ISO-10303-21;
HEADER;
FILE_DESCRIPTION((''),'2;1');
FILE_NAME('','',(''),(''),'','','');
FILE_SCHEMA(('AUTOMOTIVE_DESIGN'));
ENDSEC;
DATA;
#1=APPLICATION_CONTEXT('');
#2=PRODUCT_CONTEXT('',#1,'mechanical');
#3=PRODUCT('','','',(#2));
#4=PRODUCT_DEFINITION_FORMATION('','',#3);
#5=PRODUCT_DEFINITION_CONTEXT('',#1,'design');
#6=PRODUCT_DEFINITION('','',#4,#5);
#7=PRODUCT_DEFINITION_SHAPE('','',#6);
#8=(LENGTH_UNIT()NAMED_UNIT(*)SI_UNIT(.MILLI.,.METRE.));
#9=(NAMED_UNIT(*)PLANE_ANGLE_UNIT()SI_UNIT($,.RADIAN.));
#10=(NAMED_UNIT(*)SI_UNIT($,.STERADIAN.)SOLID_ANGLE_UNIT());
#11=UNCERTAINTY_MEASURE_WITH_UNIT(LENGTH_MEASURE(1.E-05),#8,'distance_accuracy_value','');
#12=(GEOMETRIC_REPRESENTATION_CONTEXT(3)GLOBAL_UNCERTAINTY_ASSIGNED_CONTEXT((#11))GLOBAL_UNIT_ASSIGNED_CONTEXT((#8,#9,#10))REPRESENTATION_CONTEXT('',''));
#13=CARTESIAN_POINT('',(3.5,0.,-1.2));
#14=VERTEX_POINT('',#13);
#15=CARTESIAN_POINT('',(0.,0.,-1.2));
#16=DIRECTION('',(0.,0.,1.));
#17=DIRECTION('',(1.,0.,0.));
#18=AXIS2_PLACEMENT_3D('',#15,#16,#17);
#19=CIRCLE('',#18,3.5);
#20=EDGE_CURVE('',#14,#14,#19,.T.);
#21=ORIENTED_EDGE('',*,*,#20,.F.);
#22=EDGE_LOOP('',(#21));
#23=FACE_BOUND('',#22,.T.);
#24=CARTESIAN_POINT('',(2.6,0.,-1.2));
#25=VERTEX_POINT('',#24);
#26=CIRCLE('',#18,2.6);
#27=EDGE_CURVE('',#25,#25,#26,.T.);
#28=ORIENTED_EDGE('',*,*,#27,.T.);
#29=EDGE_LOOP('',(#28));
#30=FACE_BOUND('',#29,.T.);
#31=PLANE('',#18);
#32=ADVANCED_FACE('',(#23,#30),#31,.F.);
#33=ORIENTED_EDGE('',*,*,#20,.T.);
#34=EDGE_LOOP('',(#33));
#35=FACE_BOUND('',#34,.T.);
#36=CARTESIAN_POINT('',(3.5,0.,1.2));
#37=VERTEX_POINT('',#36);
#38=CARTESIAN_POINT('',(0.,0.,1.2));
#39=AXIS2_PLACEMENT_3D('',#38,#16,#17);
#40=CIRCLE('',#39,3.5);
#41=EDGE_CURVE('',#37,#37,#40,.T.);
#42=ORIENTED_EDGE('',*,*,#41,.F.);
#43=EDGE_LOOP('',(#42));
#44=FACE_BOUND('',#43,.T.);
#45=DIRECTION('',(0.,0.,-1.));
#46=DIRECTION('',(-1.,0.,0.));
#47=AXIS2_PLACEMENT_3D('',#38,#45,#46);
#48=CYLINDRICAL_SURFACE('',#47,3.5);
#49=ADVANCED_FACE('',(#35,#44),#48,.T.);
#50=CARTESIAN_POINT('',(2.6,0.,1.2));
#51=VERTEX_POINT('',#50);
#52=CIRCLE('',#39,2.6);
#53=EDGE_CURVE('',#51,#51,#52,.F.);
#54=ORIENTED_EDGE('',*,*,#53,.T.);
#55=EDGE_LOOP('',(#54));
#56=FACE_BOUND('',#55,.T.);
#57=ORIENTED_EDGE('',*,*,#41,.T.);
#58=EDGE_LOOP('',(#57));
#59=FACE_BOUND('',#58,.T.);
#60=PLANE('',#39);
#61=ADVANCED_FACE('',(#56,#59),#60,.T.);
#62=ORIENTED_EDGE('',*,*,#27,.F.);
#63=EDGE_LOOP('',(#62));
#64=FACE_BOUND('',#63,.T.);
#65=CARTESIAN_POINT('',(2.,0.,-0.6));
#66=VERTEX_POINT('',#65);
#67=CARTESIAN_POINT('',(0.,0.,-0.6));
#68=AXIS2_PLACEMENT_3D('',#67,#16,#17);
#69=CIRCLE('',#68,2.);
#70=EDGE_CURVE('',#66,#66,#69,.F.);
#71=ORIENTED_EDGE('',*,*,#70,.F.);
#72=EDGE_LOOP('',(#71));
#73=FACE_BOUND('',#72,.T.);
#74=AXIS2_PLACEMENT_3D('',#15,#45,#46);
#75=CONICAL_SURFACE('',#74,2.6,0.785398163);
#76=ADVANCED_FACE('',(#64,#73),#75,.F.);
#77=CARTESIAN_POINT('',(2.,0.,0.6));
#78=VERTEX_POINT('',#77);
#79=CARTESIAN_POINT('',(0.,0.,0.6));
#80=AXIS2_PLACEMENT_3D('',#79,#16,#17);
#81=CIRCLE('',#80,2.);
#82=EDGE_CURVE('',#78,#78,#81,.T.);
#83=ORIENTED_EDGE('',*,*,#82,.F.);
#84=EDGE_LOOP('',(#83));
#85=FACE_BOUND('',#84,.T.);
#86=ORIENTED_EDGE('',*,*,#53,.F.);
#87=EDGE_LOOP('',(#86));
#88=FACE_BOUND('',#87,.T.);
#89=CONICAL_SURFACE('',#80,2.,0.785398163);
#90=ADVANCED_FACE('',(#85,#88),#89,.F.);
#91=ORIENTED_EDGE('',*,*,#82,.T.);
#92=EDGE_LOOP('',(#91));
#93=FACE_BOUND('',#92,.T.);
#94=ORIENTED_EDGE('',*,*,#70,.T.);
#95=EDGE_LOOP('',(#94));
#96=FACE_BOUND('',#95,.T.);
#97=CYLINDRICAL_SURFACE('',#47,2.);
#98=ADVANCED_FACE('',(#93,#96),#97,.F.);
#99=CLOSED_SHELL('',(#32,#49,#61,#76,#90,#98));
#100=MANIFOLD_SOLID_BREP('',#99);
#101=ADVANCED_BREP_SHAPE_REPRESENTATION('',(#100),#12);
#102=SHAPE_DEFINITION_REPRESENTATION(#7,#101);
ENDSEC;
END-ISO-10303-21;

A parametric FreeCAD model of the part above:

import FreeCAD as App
import Part
import Sketcher

V = App.Vector
Q = App.Units.Quantity


def edges_at(feature, points):
    """Names of the edges that pass closest to the given points."""
    edges = feature.Shape.Edges
    near = lambda p: min(range(len(edges)), key=lambda i: edges[i].distToShape(Part.Vertex(*p))[0])
    return sorted({f"Edge{near(p) + 1}" for p in points})

doc = App.newDocument("Part")
body = doc.addObject("PartDesign::Body", "Body")

sketch1 = body.newObject("Sketcher::SketchObject", "Sketch")
sketch1.AttachmentSupport = (doc.getObject("XY_Plane"), [""])
sketch1.MapMode = "FlatFace"
sketch1.addGeometry([
    Part.Circle(V(0, 0, 0), V(0, 0, 1), 3.5),
    Part.Circle(V(0, 0, 0), V(0, 0, 1), 2),
], False)
sketch1.addConstraint([
    Sketcher.Constraint("Coincident", 0, 3, -1, 1),
    Sketcher.Constraint("Coincident", 1, 3, -1, 1),
    Sketcher.Constraint("Diameter", 0, Q("7 mm")),
    Sketcher.Constraint("Diameter", 1, Q("4 mm")),
])
pad1 = body.newObject("PartDesign::Pad", "Pad")
pad1.Profile = sketch1
pad1.Length = 2.4
pad1.Midplane = True
doc.recompute()

chamfer = body.newObject("PartDesign::Chamfer", "Chamfer")
chamfer.Base = (pad1, edges_at(pad1, [(-2, 0, -1.2), (-2, 0, 1.2)]))
chamfer.Size = 0.6

doc.recompute()
